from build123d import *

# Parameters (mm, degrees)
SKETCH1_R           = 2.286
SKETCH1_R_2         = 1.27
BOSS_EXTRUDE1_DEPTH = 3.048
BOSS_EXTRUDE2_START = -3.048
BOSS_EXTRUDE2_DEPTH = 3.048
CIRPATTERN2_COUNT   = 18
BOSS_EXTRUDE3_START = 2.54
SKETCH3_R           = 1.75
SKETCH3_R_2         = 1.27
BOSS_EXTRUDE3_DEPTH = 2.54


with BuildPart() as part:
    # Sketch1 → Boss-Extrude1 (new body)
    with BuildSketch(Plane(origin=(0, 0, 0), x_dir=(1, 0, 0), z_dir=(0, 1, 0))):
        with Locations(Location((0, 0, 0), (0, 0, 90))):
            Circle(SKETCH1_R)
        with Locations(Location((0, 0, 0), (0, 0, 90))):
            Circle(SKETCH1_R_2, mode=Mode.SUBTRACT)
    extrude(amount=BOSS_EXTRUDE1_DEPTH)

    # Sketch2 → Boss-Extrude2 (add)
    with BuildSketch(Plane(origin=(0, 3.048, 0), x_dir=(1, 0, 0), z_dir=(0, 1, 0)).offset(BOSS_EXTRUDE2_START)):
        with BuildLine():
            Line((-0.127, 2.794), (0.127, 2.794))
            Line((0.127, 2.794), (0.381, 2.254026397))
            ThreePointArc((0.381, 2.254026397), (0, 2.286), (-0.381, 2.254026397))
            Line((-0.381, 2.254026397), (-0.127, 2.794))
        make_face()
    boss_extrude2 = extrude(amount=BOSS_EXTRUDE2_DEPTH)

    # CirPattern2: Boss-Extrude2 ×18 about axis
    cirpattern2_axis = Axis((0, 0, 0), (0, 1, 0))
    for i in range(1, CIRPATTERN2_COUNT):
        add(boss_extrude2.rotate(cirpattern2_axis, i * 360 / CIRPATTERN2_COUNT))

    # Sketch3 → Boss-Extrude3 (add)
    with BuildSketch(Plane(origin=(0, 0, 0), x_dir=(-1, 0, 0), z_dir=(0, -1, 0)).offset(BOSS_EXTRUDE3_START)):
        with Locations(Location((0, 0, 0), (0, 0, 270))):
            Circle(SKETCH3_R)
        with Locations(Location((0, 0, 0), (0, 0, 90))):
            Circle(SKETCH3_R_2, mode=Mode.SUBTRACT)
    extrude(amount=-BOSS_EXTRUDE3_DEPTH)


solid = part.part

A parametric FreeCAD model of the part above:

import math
import FreeCAD as App
import Part
import Sketcher

V = App.Vector
Q = App.Units.Quantity

doc = App.newDocument("Part")
params = doc.addObject("Spreadsheet::Sheet", "Params")
for row, (alias, value) in enumerate([
    ("sketch1_diameter", "0.1 in"),
    ("sketch1_diameter2", "0.18 in"),
    ("pad1_length", "0.12 in"),
    ("sketch2_radius", "0.09 in"),
    ("sketch2_width", "0.01 in"),
    ("pad2_length", "0.12 in"),
    ("sketch3_diameter", "0.1 in"),
    ("pad3_length", "0.1 in"),
], start=1):
    params.set(f"A{row}", alias)
    params.set(f"B{row}", "=" + value)
    params.setAlias(f"B{row}", alias)

body = doc.addObject("PartDesign::Body", "Body")

sketch1 = body.newObject("Sketcher::SketchObject", "Sketch")
sketch1.AttachmentSupport = (doc.getObject("XZ_Plane"), [""])
sketch1.MapMode = "FlatFace"
sketch1.addGeometry([
    Part.Circle(V(0, 0, 0), V(0, 0, 1), 2.3),
    Part.Circle(V(0, 0, 0), V(0, 0, 1), 1.3),
], False)
sketch1.addConstraint([
    Sketcher.Constraint("Coincident", 0, 3, -1, 1),
    Sketcher.Constraint("Coincident", 1, 3, -1, 1),
    Sketcher.Constraint("Diameter", 1, Q("0.1 in")),
    Sketcher.Constraint("Diameter", 0, Q("0.18 in")),
])
sketch1.setExpression("Constraints[2]", "Params.sketch1_diameter")
sketch1.setExpression("Constraints[3]", "Params.sketch1_diameter2")
pad1 = body.newObject("PartDesign::Pad", "Pad")
pad1.Profile = sketch1
pad1.setExpression("Length", "Params.pad1_length")
pad1.Reversed = True

sketch2 = body.newObject("Sketcher::SketchObject", "Sketch001")
sketch2.AttachmentSupport = (doc.getObject("XZ_Plane"), [""])
sketch2.MapMode = "FlatFace"
sketch2.addGeometry([
    Part.LineSegment(V(0.13, -2.79, 0), V(-0.13, -2.79, 0)),
    Part.LineSegment(V(-0.13, -2.79, 0), V(-0.38, -2.25, 0)),
    Part.ArcOfCircle(Part.Circle(V(0, 0, 0), V(0, 0, 1), 2.29), math.radians(-99.59), math.radians(-80.41)),
    Part.LineSegment(V(0.38, -2.25, 0), V(0.13, -2.79, 0)),
], False)
sketch2.addConstraint([
    Sketcher.Constraint("Coincident", 0, 2, 1, 1),
    Sketcher.Constraint("Coincident", 1, 2, 2, 1),
    Sketcher.Constraint("Coincident", 2, 2, 3, 1),
    Sketcher.Constraint("Coincident", 3, 2, 0, 1),
    Sketcher.Constraint("Horizontal", 0),
    Sketcher.Constraint("Coincident", 2, 3, -1, 1),
    Sketcher.Constraint("Horizontal", 1, 2, 2, 2),
    Sketcher.Constraint("Equal", 1, 3),
    Sketcher.Constraint("Radius", 2, Q("0.09 in")),
    Sketcher.Constraint("DistanceX", 0, 2, 0, 1, Q("0.01 in")),
    Sketcher.Constraint("DistanceY", 0, 2, -1, 1, Q("0.11 in")),
    Sketcher.Constraint("DistanceX", 1, 2, 0, 2, Q("0.01 in")),
])
sketch2.setExpression("Constraints[8]", "Params.sketch2_radius")
sketch2.setExpression("Constraints[9]", "Params.sketch2_width")
pad2 = body.newObject("PartDesign::Pad", "Pad001")
pad2.Profile = sketch2
pad2.setExpression("Length", "Params.pad2_length")
pad2.Reversed = True
doc.recompute()

polarpattern = body.newObject("PartDesign::PolarPattern", "PolarPattern")
polarpattern.Originals = [pad2]
polarpattern.Axis = (doc.getObject("Y_Axis"), [""])
polarpattern.Angle = 360
polarpattern.Occurrences = 18
body.Tip = polarpattern

sketch3 = body.newObject("Sketcher::SketchObject", "Sketch002")
sketch3.AttachmentSupport = (doc.getObject("XZ_Plane"), [""])
sketch3.MapMode = "FlatFace"
sketch3.AttachmentOffset = App.Placement(V(0, 0, 0.1 * 25.4), App.Rotation())
sketch3.addGeometry([
    Part.Circle(V(0, 0, 0), V(0, 0, 1), 1.8),
    Part.Circle(V(0, 0, 0), V(0, 0, 1), 1.3),
], False)
sketch3.addConstraint([
    Sketcher.Constraint("Coincident", 0, 3, -1, 1),
    Sketcher.Constraint("Coincident", 1, 3, -1, 1),
    Sketcher.Constraint("Diameter", 1, Q("0.1 in")),
    Sketcher.Constraint("Diameter", 0, Q("3.5 mm")),
])
sketch3.setExpression("Constraints[2]", "Params.sketch3_diameter")
pad3 = body.newObject("PartDesign::Pad", "Pad002")
pad3.Profile = sketch3
pad3.setExpression("Length", "Params.pad3_length")
pad3.Reversed = True

doc.recompute()
